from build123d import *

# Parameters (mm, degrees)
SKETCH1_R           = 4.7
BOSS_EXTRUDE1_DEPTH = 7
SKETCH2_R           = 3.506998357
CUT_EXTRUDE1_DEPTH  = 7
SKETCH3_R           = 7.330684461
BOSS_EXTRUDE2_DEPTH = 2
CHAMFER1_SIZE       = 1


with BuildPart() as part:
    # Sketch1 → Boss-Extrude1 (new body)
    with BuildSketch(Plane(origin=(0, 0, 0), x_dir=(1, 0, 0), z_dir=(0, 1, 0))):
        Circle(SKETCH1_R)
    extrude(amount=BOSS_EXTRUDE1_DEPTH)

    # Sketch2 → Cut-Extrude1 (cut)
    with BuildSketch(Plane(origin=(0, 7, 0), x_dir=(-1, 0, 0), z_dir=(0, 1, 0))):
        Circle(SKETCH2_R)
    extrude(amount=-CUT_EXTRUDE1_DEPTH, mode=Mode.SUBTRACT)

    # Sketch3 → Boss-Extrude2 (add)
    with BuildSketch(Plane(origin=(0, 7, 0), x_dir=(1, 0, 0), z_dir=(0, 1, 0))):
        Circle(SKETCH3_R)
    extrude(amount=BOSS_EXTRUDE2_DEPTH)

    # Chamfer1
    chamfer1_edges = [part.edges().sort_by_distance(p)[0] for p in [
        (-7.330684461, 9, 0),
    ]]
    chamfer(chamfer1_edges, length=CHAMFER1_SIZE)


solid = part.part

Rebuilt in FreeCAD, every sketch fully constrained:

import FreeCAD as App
import Part
import Sketcher
Q = App.Units.Quantity


def edges_at(feature, points):
    """Names of the edges that pass closest to the given points."""
    edges = feature.Shape.Edges
    near = lambda p: min(range(len(edges)), key=lambda i: edges[i].distToShape(Part.Vertex(*p))[0])
    return sorted({f"Edge{near(p) + 1}" for p in points})

doc = App.newDocument("Part")
body = doc.addObject("PartDesign::Body", "Body")

sketch1 = body.newObject("Sketcher::SketchObject", "Sketch")
sketch1.AttachmentSupport = (doc.getObject("XZ_Plane"), [""])
sketch1.MapMode = "FlatFace"
sketch1.addGeometry(Part.Circle(App.Vector(0, 0, 0), App.Vector(0, 0, 1), 4.7), False)
sketch1.addConstraint([
    Sketcher.Constraint("Coincident", 0, 3, -1, 1),
    Sketcher.Constraint("Diameter", 0, Q("9.4 mm")),
])
pad1 = body.newObject("PartDesign::Pad", "Pad")
pad1.Profile = sketch1
pad1.Length = 7
pad1.Reversed = True

sketch2 = body.newObject("Sketcher::SketchObject", "Sketch001")
sketch2.AttachmentSupport = (doc.getObject("XZ_Plane"), [""])
sketch2.MapMode = "FlatFace"
sketch2.AttachmentOffset = App.Placement(App.Vector(0, 0, -7), App.Rotation())
sketch2.addGeometry(Part.Circle(App.Vector(0, 0, 0), App.Vector(0, 0, 1), 3.5), False)
sketch2.addConstraint([
    Sketcher.Constraint("Coincident", 0, 3, -1, 1),
    Sketcher.Constraint("Diameter", 0, Q("7.013997 mm")),
])
pocket1 = body.newObject("PartDesign::Pocket", "Pocket")
pocket1.Profile = sketch2
pocket1.Length = 7
pocket1.Reversed = True

sketch3 = body.newObject("Sketcher::SketchObject", "Sketch002")
sketch3.AttachmentSupport = (doc.getObject("XZ_Plane"), [""])
sketch3.MapMode = "FlatFace"
sketch3.AttachmentOffset = App.Placement(App.Vector(0, 0, -7), App.Rotation())
sketch3.addGeometry(Part.Circle(App.Vector(0, 0, 0), App.Vector(0, 0, 1), 7), False)
sketch3.addConstraint([
    Sketcher.Constraint("Coincident", 0, 3, -1, 1),
    Sketcher.Constraint("Diameter", 0, Q("14.661369 mm")),
])
pad2 = body.newObject("PartDesign::Pad", "Pad001")
pad2.Profile = sketch3
pad2.Length = 2
pad2.Reversed = True
doc.recompute()

chamfer = body.newObject("PartDesign::Chamfer", "Chamfer")
chamfer.Base = (pad2, edges_at(pad2, [(-7.331, 9, 0)]))
chamfer.Size = 1

doc.recompute()
